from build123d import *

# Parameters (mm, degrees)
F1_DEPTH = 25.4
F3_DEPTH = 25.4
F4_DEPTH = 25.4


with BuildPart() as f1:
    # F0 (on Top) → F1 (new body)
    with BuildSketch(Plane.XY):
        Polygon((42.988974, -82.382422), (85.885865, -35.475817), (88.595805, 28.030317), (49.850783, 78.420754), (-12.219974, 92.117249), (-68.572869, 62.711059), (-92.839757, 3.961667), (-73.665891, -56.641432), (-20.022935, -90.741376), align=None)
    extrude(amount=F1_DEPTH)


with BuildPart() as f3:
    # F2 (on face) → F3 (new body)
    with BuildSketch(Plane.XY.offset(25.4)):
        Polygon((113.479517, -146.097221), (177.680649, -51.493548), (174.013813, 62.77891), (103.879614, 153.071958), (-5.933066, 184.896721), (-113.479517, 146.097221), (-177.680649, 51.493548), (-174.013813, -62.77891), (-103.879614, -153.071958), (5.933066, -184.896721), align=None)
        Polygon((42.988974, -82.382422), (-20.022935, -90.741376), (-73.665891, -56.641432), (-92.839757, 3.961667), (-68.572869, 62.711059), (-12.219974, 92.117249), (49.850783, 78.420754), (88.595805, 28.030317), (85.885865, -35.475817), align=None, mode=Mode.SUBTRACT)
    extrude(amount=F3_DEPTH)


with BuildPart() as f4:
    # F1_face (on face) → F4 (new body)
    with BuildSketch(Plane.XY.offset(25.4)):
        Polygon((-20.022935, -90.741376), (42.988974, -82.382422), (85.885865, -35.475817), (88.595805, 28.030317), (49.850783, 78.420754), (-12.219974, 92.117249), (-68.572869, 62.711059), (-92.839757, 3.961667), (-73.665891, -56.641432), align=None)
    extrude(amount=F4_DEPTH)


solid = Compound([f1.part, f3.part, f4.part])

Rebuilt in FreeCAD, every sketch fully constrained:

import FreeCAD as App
import Part
import Sketcher

V = App.Vector
Q = App.Units.Quantity

doc = App.newDocument("Part")
params = doc.addObject("Spreadsheet::Sheet", "Params")
for row, (alias, value) in enumerate([
    ("pad1_length", "1 in"),
    ("pad2_length", "1 in"),
    ("pad3_length", "1 in"),
], start=1):
    params.set(f"A{row}", alias)
    params.set(f"B{row}", "=" + value)
    params.setAlias(f"B{row}", alias)

body = doc.addObject("PartDesign::Body", "Body")

sketch1 = doc.addObject("Sketcher::SketchObject", "Sketch")
body.addObject(sketch1)
sketch1.AttachmentSupport = (doc.XY_Plane, [""])
sketch1.MapMode = "FlatFace"
sketch1.addGeometry(Part.LineSegment(V(43, -82, 0), V(86, -35, 0)), False)
sketch1.addGeometry(Part.LineSegment(V(86, -35, 0), V(89, 28, 0)), False)
sketch1.addGeometry(Part.LineSegment(V(89, 28, 0), V(50, 78, 0)), False)
sketch1.addGeometry(Part.LineSegment(V(50, 78, 0), V(-12, 92, 0)), False)
sketch1.addGeometry(Part.LineSegment(V(-12, 92, 0), V(-69, 63, 0)), False)
sketch1.addGeometry(Part.LineSegment(V(-69, 63, 0), V(-93, 4, 0)), False)
sketch1.addGeometry(Part.LineSegment(V(-93, 4, 0), V(-74, -57, 0)), False)
sketch1.addGeometry(Part.LineSegment(V(-74, -57, 0), V(-20, -91, 0)), False)
sketch1.addGeometry(Part.LineSegment(V(-20, -91, 0), V(43, -82, 0)), False)
sketch1.addConstraint(Sketcher.Constraint("Coincident", 0, 2, 1, 1))
sketch1.addConstraint(Sketcher.Constraint("Coincident", 1, 2, 2, 1))
sketch1.addConstraint(Sketcher.Constraint("Coincident", 2, 2, 3, 1))
sketch1.addConstraint(Sketcher.Constraint("Coincident", 3, 2, 4, 1))
sketch1.addConstraint(Sketcher.Constraint("Coincident", 4, 2, 5, 1))
sketch1.addConstraint(Sketcher.Constraint("Coincident", 5, 2, 6, 1))
sketch1.addConstraint(Sketcher.Constraint("Coincident", 6, 2, 7, 1))
sketch1.addConstraint(Sketcher.Constraint("Coincident", 7, 2, 8, 1))
sketch1.addConstraint(Sketcher.Constraint("Coincident", 8, 2, 0, 1))
sketch1.addConstraint(Sketcher.Constraint("Equal", 0, 1))
sketch1.addConstraint(Sketcher.Constraint("Equal", 1, 2))
sketch1.addConstraint(Sketcher.Constraint("Equal", 2, 3))
sketch1.addConstraint(Sketcher.Constraint("Equal", 3, 4))
sketch1.addConstraint(Sketcher.Constraint("Equal", 4, 5))
sketch1.addConstraint(Sketcher.Constraint("Equal", 5, 6))
sketch1.addConstraint(Sketcher.Constraint("Equal", 6, 7))
sketch1.addConstraint(Sketcher.Constraint("Equal", 7, 8))
sketch1.addConstraint(Sketcher.Constraint("DistanceY", 6, 2, 5, 2, Q("60.603099 mm")))
sketch1.addConstraint(Sketcher.Constraint("DistanceX", 7, 2, 0, 2, Q("105.9088 mm")))
sketch1.addConstraint(Sketcher.Constraint("DistanceY", -1, 1, 3, 2, Q("92.117249 mm")))
sketch1.addConstraint(Sketcher.Constraint("DistanceX", 4, 2, -1, 1, Q("68.572869 mm")))
sketch1.addConstraint(Sketcher.Constraint("DistanceY", -1, 1, 4, 2, Q("62.711059 mm")))
sketch1.addConstraint(Sketcher.Constraint("DistanceX", 6, 2, -1, 1, Q("73.665891 mm")))
sketch1.addConstraint(Sketcher.Constraint("DistanceX", 0, 2, 1, 2, Q("2.70994 mm")))
sketch1.addConstraint(Sketcher.Constraint("DistanceX", 2, 2, 0, 2, Q("36.035082 mm")))
sketch1.addConstraint(Sketcher.Constraint("DistanceY", 0, 2, 2, 2, Q("113.896571 mm")))
sketch1.addConstraint(Sketcher.Constraint("DistanceX", 3, 2, 1, 2, Q("100.815779 mm")))
pad1 = doc.addObject("PartDesign::Pad", "Pad")
body.addObject(pad1)
pad1.Profile = sketch1
pad1.setExpression("Length", "Params.pad1_length")
body2 = doc.addObject("PartDesign::Body", "Body001")

sketch2 = doc.addObject("Sketcher::SketchObject", "Sketch001")
body2.addObject(sketch2)
sketch2.AttachmentSupport = (doc.getObject("XY_Plane001"), [""])
sketch2.MapMode = "FlatFace"
sketch2.AttachmentOffset = App.Placement(V(0, 0, 1 * 25.4), App.Rotation())
sketch2.addGeometry(Part.LineSegment(V(113, -146, 0), V(178, -51, 0)), False)
sketch2.addGeometry(Part.LineSegment(V(178, -51, 0), V(174, 63, 0)), False)
sketch2.addGeometry(Part.LineSegment(V(174, 63, 0), V(104, 153, 0)), False)
sketch2.addGeometry(Part.LineSegment(V(104, 153, 0), V(-6, 185, 0)), False)
sketch2.addGeometry(Part.LineSegment(V(-6, 185, 0), V(-113, 146, 0)), False)
sketch2.addGeometry(Part.LineSegment(V(-113, 146, 0), V(-178, 51, 0)), False)
sketch2.addGeometry(Part.LineSegment(V(-178, 51, 0), V(-174, -63, 0)), False)
sketch2.addGeometry(Part.LineSegment(V(-174, -63, 0), V(-104, -153, 0)), False)
sketch2.addGeometry(Part.LineSegment(V(-104, -153, 0), V(6, -185, 0)), False)
sketch2.addGeometry(Part.LineSegment(V(6, -185, 0), V(113, -146, 0)), False)
sketch2.addGeometry(Part.LineSegment(V(86, -35, 0), V(43, -82, 0)), False)
sketch2.addGeometry(Part.LineSegment(V(43, -82, 0), V(-20, -91, 0)), False)
sketch2.addGeometry(Part.LineSegment(V(-20, -91, 0), V(-74, -57, 0)), False)
sketch2.addGeometry(Part.LineSegment(V(-74, -57, 0), V(-93, 4, 0)), False)
sketch2.addGeometry(Part.LineSegment(V(-93, 4, 0), V(-69, 63, 0)), False)
sketch2.addGeometry(Part.LineSegment(V(-69, 63, 0), V(-12, 92, 0)), False)
sketch2.addGeometry(Part.LineSegment(V(-12, 92, 0), V(50, 78, 0)), False)
sketch2.addGeometry(Part.LineSegment(V(50, 78, 0), V(89, 28, 0)), False)
sketch2.addGeometry(Part.LineSegment(V(89, 28, 0), V(86, -35, 0)), False)
sketch2.addConstraint(Sketcher.Constraint("Coincident", 0, 2, 1, 1))
sketch2.addConstraint(Sketcher.Constraint("Coincident", 1, 2, 2, 1))
sketch2.addConstraint(Sketcher.Constraint("Coincident", 2, 2, 3, 1))
sketch2.addConstraint(Sketcher.Constraint("Coincident", 3, 2, 4, 1))
sketch2.addConstraint(Sketcher.Constraint("Coincident", 4, 2, 5, 1))
sketch2.addConstraint(Sketcher.Constraint("Coincident", 5, 2, 6, 1))
sketch2.addConstraint(Sketcher.Constraint("Coincident", 6, 2, 7, 1))
sketch2.addConstraint(Sketcher.Constraint("Coincident", 7, 2, 8, 1))
sketch2.addConstraint(Sketcher.Constraint("Coincident", 8, 2, 9, 1))
sketch2.addConstraint(Sketcher.Constraint("Coincident", 9, 2, 0, 1))
sketch2.addConstraint(Sketcher.Constraint("Coincident", 10, 2, 11, 1))
sketch2.addConstraint(Sketcher.Constraint("Coincident", 11, 2, 12, 1))
sketch2.addConstraint(Sketcher.Constraint("Coincident", 12, 2, 13, 1))
sketch2.addConstraint(Sketcher.Constraint("Coincident", 13, 2, 14, 1))
sketch2.addConstraint(Sketcher.Constraint("Coincident", 14, 2, 15, 1))
sketch2.addConstraint(Sketcher.Constraint("Coincident", 15, 2, 16, 1))
sketch2.addConstraint(Sketcher.Constraint("Coincident", 16, 2, 17, 1))
sketch2.addConstraint(Sketcher.Constraint("Coincident", 17, 2, 18, 1))
sketch2.addConstraint(Sketcher.Constraint("Coincident", 18, 2, 10, 1))
sketch2.addConstraint(Sketcher.Constraint("Symmetric", 0, 2, 5, 2, -1, 1))
sketch2.addConstraint(Sketcher.Constraint("Symmetric", 1, 2, 6, 2, -1, 1))
sketch2.addConstraint(Sketcher.Constraint("Symmetric", 2, 2, 7, 2, -1, 1))
sketch2.addConstraint(Sketcher.Constraint("Symmetric", 3, 2, 8, 2, -1, 1))
sketch2.addConstraint(Sketcher.Constraint("Symmetric", 4, 2, 9, 2, -1, 1))
sketch2.addConstraint(Sketcher.Constraint("Equal", 0, 1))
sketch2.addConstraint(Sketcher.Constraint("Equal", 1, 2))
sketch2.addConstraint(Sketcher.Constraint("Equal", 2, 3))
sketch2.addConstraint(Sketcher.Constraint("Equal", 3, 4))
sketch2.addConstraint(Sketcher.Constraint("Equal", 10, 11))
sketch2.addConstraint(Sketcher.Constraint("Equal", 11, 12))
sketch2.addConstraint(Sketcher.Constraint("Equal", 12, 13))
sketch2.addConstraint(Sketcher.Constraint("Equal", 13, 14))
sketch2.addConstraint(Sketcher.Constraint("Equal", 14, 15))
sketch2.addConstraint(Sketcher.Constraint("Equal", 15, 16))
sketch2.addConstraint(Sketcher.Constraint("Equal", 16, 17))
sketch2.addConstraint(Sketcher.Constraint("Equal", 17, 18))
sketch2.addConstraint(Sketcher.Constraint("DistanceX", 2, 2, 1, 2, Q("70.134199 mm")))
sketch2.addConstraint(Sketcher.Constraint("DistanceY", 4, 2, 3, 2, Q("38.7995 mm")))
sketch2.addConstraint(Sketcher.Constraint("DistanceY", 9, 2, 10, 2, Q("63.714799 mm")))
sketch2.addConstraint(Sketcher.Constraint("DistanceX", 11, 2, 8, 2, Q("25.956001 mm")))
sketch2.addConstraint(Sketcher.Constraint("DistanceY", 12, 2, 13, 2, Q("60.603099 mm")))
sketch2.addConstraint(Sketcher.Constraint("DistanceX", 11, 2, 18, 2, Q("105.9088 mm")))
sketch2.addConstraint(Sketcher.Constraint("DistanceX", -1, 1, 0, 2, Q("177.680649 mm")))
sketch2.addConstraint(Sketcher.Constraint("DistanceY", -1, 1, 1, 2, Q("62.77891 mm")))
sketch2.addConstraint(Sketcher.Constraint("DistanceY", -1, 1, 2, 2, Q("153.071958 mm")))
sketch2.addConstraint(Sketcher.Constraint("DistanceY", -1, 1, 3, 2, Q("184.896721 mm")))
sketch2.addConstraint(Sketcher.Constraint("DistanceX", 12, 2, -1, 1, Q("73.665891 mm")))
sketch2.addConstraint(Sketcher.Constraint("DistanceX", 14, 2, -1, 1, Q("68.572869 mm")))
sketch2.addConstraint(Sketcher.Constraint("DistanceY", -1, 1, 14, 2, Q("62.711059 mm")))
sketch2.addConstraint(Sketcher.Constraint("DistanceY", -1, 1, 15, 2, Q("92.117249 mm")))
sketch2.addConstraint(Sketcher.Constraint("DistanceX", 8, 2, 10, 2, Q("37.055908 mm")))
sketch2.addConstraint(Sketcher.Constraint("DistanceX", 16, 2, 2, 2, Q("54.028831 mm")))
pad2 = doc.addObject("PartDesign::Pad", "Pad001")
body2.addObject(pad2)
pad2.Profile = sketch2
pad2.setExpression("Length", "Params.pad2_length")
body3 = doc.addObject("PartDesign::Body", "Body002")

sketch3 = doc.addObject("Sketcher::SketchObject", "Sketch002")
body3.addObject(sketch3)
sketch3.AttachmentSupport = (doc.getObject("XY_Plane002"), [""])
sketch3.MapMode = "FlatFace"
sketch3.AttachmentOffset = App.Placement(V(0, 0, 1 * 25.4), App.Rotation())
sketch3.addGeometry(Part.LineSegment(V(-20, -91, 0), V(43, -82, 0)), False)
sketch3.addGeometry(Part.LineSegment(V(43, -82, 0), V(86, -35, 0)), False)
sketch3.addGeometry(Part.LineSegment(V(86, -35, 0), V(89, 28, 0)), False)
sketch3.addGeometry(Part.LineSegment(V(89, 28, 0), V(50, 78, 0)), False)
sketch3.addGeometry(Part.LineSegment(V(50, 78, 0), V(-12, 92, 0)), False)
sketch3.addGeometry(Part.LineSegment(V(-12, 92, 0), V(-69, 63, 0)), False)
sketch3.addGeometry(Part.LineSegment(V(-69, 63, 0), V(-93, 4, 0)), False)
sketch3.addGeometry(Part.LineSegment(V(-93, 4, 0), V(-74, -57, 0)), False)
sketch3.addGeometry(Part.LineSegment(V(-74, -57, 0), V(-20, -91, 0)), False)
sketch3.addConstraint(Sketcher.Constraint("Coincident", 0, 2, 1, 1))
sketch3.addConstraint(Sketcher.Constraint("Coincident", 1, 2, 2, 1))
sketch3.addConstraint(Sketcher.Constraint("Coincident", 2, 2, 3, 1))
sketch3.addConstraint(Sketcher.Constraint("Coincident", 3, 2, 4, 1))
sketch3.addConstraint(Sketcher.Constraint("Coincident", 4, 2, 5, 1))
sketch3.addConstraint(Sketcher.Constraint("Coincident", 5, 2, 6, 1))
sketch3.addConstraint(Sketcher.Constraint("Coincident", 6, 2, 7, 1))
sketch3.addConstraint(Sketcher.Constraint("Coincident", 7, 2, 8, 1))
sketch3.addConstraint(Sketcher.Constraint("Coincident", 8, 2, 0, 1))
sketch3.addConstraint(Sketcher.Constraint("Equal", 0, 1))
sketch3.addConstraint(Sketcher.Constraint("Equal", 1, 2))
sketch3.addConstraint(Sketcher.Constraint("Equal", 2, 3))
sketch3.addConstraint(Sketcher.Constraint("Equal", 3, 4))
sketch3.addConstraint(Sketcher.Constraint("Equal", 4, 5))
sketch3.addConstraint(Sketcher.Constraint("Equal", 5, 6))
sketch3.addConstraint(Sketcher.Constraint("Equal", 6, 7))
sketch3.addConstraint(Sketcher.Constraint("Equal", 7, 8))
sketch3.addConstraint(Sketcher.Constraint("DistanceY", 7, 2, 6, 2, Q("60.603099 mm")))
sketch3.addConstraint(Sketcher.Constraint("DistanceX", 8, 2, 1, 2, Q("105.9088 mm")))
sketch3.addConstraint(Sketcher.Constraint("DistanceY", -1, 1, 4, 2, Q("92.117249 mm")))
sketch3.addConstraint(Sketcher.Constraint("DistanceX", 5, 2, -1, 1, Q("68.572869 mm")))
sketch3.addConstraint(Sketcher.Constraint("DistanceY", -1, 1, 5, 2, Q("62.711059 mm")))
sketch3.addConstraint(Sketcher.Constraint("DistanceX", 7, 2, -1, 1, Q("73.665891 mm")))
sketch3.addConstraint(Sketcher.Constraint("DistanceX", 0, 2, 1, 2, Q("42.896891 mm")))
sketch3.addConstraint(Sketcher.Constraint("DistanceX", 1, 2, 2, 2, Q("2.70994 mm")))
sketch3.addConstraint(Sketcher.Constraint("DistanceY", 0, 2, 2, 2, Q("110.412739 mm")))
sketch3.addConstraint(Sketcher.Constraint("DistanceX", 3, 2, 1, 2, Q("36.035082 mm")))
pad3 = doc.addObject("PartDesign::Pad", "Pad002")
body3.addObject(pad3)
pad3.Profile = sketch3
pad3.setExpression("Length", "Params.pad3_length")

doc.recompute()
